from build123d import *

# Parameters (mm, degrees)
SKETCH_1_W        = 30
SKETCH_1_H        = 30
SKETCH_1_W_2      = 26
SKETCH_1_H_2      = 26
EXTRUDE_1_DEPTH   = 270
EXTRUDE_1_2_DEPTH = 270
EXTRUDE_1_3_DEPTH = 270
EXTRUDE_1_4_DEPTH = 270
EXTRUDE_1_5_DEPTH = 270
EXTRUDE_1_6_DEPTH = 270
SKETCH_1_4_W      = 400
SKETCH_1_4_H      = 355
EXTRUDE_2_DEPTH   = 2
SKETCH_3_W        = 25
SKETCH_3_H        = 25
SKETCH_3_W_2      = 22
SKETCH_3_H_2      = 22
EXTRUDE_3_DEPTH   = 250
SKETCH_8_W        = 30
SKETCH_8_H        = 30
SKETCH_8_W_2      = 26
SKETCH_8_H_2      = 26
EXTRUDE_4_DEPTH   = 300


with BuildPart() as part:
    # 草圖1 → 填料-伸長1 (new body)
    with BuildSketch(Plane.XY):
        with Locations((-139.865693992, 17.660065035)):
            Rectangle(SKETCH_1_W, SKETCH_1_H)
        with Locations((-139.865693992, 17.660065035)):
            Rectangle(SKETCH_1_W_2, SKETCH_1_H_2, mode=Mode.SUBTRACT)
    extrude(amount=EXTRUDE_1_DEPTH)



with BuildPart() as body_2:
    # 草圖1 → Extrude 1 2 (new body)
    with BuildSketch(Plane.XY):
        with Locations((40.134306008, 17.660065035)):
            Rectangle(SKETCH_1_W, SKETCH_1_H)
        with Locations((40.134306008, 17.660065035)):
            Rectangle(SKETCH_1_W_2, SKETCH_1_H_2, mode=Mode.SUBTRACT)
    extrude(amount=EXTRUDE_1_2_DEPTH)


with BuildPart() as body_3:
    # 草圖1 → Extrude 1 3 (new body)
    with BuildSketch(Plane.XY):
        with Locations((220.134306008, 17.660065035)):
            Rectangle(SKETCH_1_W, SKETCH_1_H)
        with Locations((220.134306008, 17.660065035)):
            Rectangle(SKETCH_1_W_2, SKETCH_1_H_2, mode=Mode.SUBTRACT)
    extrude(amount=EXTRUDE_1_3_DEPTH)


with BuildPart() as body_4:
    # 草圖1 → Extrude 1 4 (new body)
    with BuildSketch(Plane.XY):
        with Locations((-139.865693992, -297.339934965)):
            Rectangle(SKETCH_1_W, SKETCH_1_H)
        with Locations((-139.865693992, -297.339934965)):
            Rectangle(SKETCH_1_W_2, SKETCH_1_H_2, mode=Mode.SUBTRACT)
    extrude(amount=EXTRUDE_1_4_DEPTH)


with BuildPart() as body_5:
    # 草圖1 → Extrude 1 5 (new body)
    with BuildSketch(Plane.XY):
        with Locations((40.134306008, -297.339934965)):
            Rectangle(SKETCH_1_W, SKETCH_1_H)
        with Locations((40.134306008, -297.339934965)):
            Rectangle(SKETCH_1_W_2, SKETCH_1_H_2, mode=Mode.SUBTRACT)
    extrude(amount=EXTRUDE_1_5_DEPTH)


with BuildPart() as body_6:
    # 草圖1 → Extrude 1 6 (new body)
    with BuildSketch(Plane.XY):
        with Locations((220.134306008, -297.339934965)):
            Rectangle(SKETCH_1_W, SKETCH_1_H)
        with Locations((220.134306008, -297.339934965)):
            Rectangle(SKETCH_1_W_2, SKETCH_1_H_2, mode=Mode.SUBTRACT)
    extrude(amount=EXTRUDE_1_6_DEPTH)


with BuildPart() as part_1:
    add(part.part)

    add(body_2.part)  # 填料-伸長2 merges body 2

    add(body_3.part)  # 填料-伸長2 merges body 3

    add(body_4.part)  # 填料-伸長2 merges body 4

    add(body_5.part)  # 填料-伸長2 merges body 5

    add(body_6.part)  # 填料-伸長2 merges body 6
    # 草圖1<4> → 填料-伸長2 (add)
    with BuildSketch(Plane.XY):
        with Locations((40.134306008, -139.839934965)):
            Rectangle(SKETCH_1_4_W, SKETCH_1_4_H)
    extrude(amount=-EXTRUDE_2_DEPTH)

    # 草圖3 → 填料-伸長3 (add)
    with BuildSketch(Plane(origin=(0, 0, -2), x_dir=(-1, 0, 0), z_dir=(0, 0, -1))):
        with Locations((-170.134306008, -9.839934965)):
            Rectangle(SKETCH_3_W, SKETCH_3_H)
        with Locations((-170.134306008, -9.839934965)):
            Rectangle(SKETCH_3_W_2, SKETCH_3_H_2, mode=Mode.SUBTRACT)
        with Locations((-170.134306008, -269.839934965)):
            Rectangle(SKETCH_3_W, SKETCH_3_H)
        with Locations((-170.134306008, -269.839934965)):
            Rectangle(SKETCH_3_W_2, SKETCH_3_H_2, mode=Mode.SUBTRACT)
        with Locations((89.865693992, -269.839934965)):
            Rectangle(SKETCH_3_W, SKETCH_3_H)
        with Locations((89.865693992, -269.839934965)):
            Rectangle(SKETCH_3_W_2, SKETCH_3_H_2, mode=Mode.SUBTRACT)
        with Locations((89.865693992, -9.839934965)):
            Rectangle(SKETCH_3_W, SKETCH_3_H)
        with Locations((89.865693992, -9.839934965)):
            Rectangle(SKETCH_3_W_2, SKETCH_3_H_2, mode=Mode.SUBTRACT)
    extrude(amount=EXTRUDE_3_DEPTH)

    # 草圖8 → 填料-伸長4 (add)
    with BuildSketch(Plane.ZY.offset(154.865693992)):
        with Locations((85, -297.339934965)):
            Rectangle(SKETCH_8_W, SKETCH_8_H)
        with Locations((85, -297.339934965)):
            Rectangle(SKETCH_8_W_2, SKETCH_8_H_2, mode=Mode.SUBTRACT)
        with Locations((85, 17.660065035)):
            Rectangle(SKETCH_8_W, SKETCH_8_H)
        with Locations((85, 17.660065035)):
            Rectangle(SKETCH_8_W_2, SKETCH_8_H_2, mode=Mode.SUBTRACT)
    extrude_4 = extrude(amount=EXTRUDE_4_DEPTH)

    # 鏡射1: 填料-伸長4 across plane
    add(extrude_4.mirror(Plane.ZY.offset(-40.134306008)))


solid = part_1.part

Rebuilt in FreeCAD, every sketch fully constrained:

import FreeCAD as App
import Part
import Sketcher
from FreeCAD import Vector
Q = App.Units.Quantity

doc = App.newDocument("Part")
params = doc.addObject("Spreadsheet::Sheet", "Params")
for row, (alias, value) in enumerate([
    ("sketch1_width", "30 mm"),
    ("sketch1_width2", "26 mm"),
    ("pad1_length", "270 mm"),
    ("sketch2_width", "30 mm"),
    ("sketch2_width2", "26 mm"),
    ("pad2_length", "270 mm"),
    ("sketch3_width", "30 mm"),
    ("sketch3_width2", "26 mm"),
    ("pad3_length", "270 mm"),
    ("sketch4_width", "30 mm"),
    ("sketch4_width2", "26 mm"),
    ("pad4_length", "270 mm"),
    ("sketch5_width", "30 mm"),
    ("sketch5_width2", "26 mm"),
    ("pad5_length", "270 mm"),
    ("sketch6_width", "30 mm"),
    ("sketch6_width2", "26 mm"),
    ("pad6_length", "270 mm"),
    ("sketch7_width", "400 mm"),
    ("sketch7_height", "355 mm"),
    ("pad7_length", "2 mm"),
    ("sketch8_width", "25 mm"),
    ("sketch8_width2", "22 mm"),
    ("pad8_length", "250 mm"),
    ("sketch9_width", "30 mm"),
    ("sketch9_width2", "26 mm"),
    ("pad9_length", "300 mm"),
], start=1):
    params.set(f"A{row}", alias)
    params.set(f"B{row}", "=" + value)
    params.setAlias(f"B{row}", alias)

body = doc.addObject("PartDesign::Body", "Body")

# Sketch on XY plane
sketch1 = body.newObject("Sketcher::SketchObject", "Sketch")
sketch1.AttachmentSupport = (doc.getObject("XY_Plane"), [""])
sketch1.MapMode = "FlatFace"
sketch1.addGeometry([
    Part.LineSegment(Vector(-154.865694, 32.660065, 0), Vector(-154.865694, 2.660065, 0)),  # 0
    Part.LineSegment(Vector(-154.865694, 2.660065, 0), Vector(-124.865694, 2.660065, 0)),  # 1
    Part.LineSegment(Vector(-124.865694, 2.660065, 0), Vector(-124.865694, 32.660065, 0)),  # 2
    Part.LineSegment(Vector(-124.865694, 32.660065, 0), Vector(-154.865694, 32.660065, 0)),  # 3
    Part.LineSegment(Vector(-126.865694, 4.660065, 0), Vector(-152.865694, 4.660065, 0)),  # 4
    Part.LineSegment(Vector(-152.865694, 4.660065, 0), Vector(-152.865694, 30.660065, 0)),  # 5
    Part.LineSegment(Vector(-152.865694, 30.660065, 0), Vector(-126.865694, 30.660065, 0)),  # 6
    Part.LineSegment(Vector(-126.865694, 30.660065, 0), Vector(-126.865694, 4.660065, 0)),  # 7
], False)
sketch1.addConstraint([
    Sketcher.Constraint("Coincident", 0, 2, 1, 1),
    Sketcher.Constraint("Coincident", 1, 2, 2, 1),
    Sketcher.Constraint("Coincident", 2, 2, 3, 1),
    Sketcher.Constraint("Coincident", 3, 2, 0, 1),
    Sketcher.Constraint("Coincident", 4, 2, 5, 1),
    Sketcher.Constraint("Coincident", 5, 2, 6, 1),
    Sketcher.Constraint("Coincident", 6, 2, 7, 1),
    Sketcher.Constraint("Coincident", 7, 2, 4, 1),
    Sketcher.Constraint("Vertical", 0),
    Sketcher.Constraint("Horizontal", 1),
    Sketcher.Constraint("Vertical", 2),
    Sketcher.Constraint("Horizontal", 3),
    Sketcher.Constraint("Horizontal", 4),
    Sketcher.Constraint("Vertical", 5),
    Sketcher.Constraint("Horizontal", 6),
    Sketcher.Constraint("Vertical", 7),
    Sketcher.Constraint("Equal", 3, 0),
    Sketcher.Constraint("Equal", 6, 5),
    Sketcher.Constraint("DistanceX", 1, 1, 1, 2, Q("30 mm")),
    Sketcher.Constraint("DistanceX", 4, 2, 4, 1, Q("26 mm")),
    Sketcher.Constraint("DistanceX", 0, 2, 4, 2, Q("2 mm")),
    Sketcher.Constraint("DistanceY", 0, 2, 4, 2, Q("2 mm")),
    Sketcher.Constraint("DistanceX", 0, 2, -1, 1, Q("154.865694 mm")),
    Sketcher.Constraint("DistanceY", -1, 1, 0, 2, Q("2.660065 mm")),
])
sketch1.setExpression("Constraints[18]", "Params.sketch1_width")
sketch1.setExpression("Constraints[19]", "Params.sketch1_width2")
pad1 = body.newObject("PartDesign::Pad", "Pad")
pad1.Profile = sketch1
pad1.setExpression("Length", "Params.pad1_length")
body2 = doc.addObject("PartDesign::Body", "Body001")

# Sketch on XY plane
sketch2 = body2.newObject("Sketcher::SketchObject", "Sketch001")
sketch2.AttachmentSupport = (doc.getObject("XY_Plane001"), [""])
sketch2.MapMode = "FlatFace"
sketch2.addGeometry([
    Part.LineSegment(Vector(25.134306, 32.660065, 0), Vector(25.134306, 2.660065, 0)),  # 0
    Part.LineSegment(Vector(25.134306, 2.660065, 0), Vector(55.134306, 2.660065, 0)),  # 1
    Part.LineSegment(Vector(55.134306, 2.660065, 0), Vector(55.134306, 32.660065, 0)),  # 2
    Part.LineSegment(Vector(55.134306, 32.660065, 0), Vector(25.134306, 32.660065, 0)),  # 3
    Part.LineSegment(Vector(53.134306, 4.660065, 0), Vector(27.134306, 4.660065, 0)),  # 4
    Part.LineSegment(Vector(27.134306, 4.660065, 0), Vector(27.134306, 30.660065, 0)),  # 5
    Part.LineSegment(Vector(27.134306, 30.660065, 0), Vector(53.134306, 30.660065, 0)),  # 6
    Part.LineSegment(Vector(53.134306, 30.660065, 0), Vector(53.134306, 4.660065, 0)),  # 7
], False)
sketch2.addConstraint([
    Sketcher.Constraint("Coincident", 0, 2, 1, 1),
    Sketcher.Constraint("Coincident", 1, 2, 2, 1),
    Sketcher.Constraint("Coincident", 2, 2, 3, 1),
    Sketcher.Constraint("Coincident", 3, 2, 0, 1),
    Sketcher.Constraint("Coincident", 4, 2, 5, 1),
    Sketcher.Constraint("Coincident", 5, 2, 6, 1),
    Sketcher.Constraint("Coincident", 6, 2, 7, 1),
    Sketcher.Constraint("Coincident", 7, 2, 4, 1),
    Sketcher.Constraint("Vertical", 0),
    Sketcher.Constraint("Horizontal", 1),
    Sketcher.Constraint("Vertical", 2),
    Sketcher.Constraint("Horizontal", 3),
    Sketcher.Constraint("Horizontal", 4),
    Sketcher.Constraint("Vertical", 5),
    Sketcher.Constraint("Horizontal", 6),
    Sketcher.Constraint("Vertical", 7),
    Sketcher.Constraint("Equal", 3, 0),
    Sketcher.Constraint("Equal", 6, 5),
    Sketcher.Constraint("DistanceX", 1, 1, 1, 2, Q("30 mm")),
    Sketcher.Constraint("DistanceX", 4, 2, 4, 1, Q("26 mm")),
    Sketcher.Constraint("DistanceX", 0, 2, 4, 2, Q("2 mm")),
    Sketcher.Constraint("DistanceY", 0, 2, 4, 2, Q("2 mm")),
    Sketcher.Constraint("DistanceX", -1, 1, 0, 2, Q("25.134306 mm")),
    Sketcher.Constraint("DistanceY", -1, 1, 0, 2, Q("2.660065 mm")),
])
sketch2.setExpression("Constraints[18]", "Params.sketch2_width")
sketch2.setExpression("Constraints[19]", "Params.sketch2_width2")
pad2 = body2.newObject("PartDesign::Pad", "Pad001")
pad2.Profile = sketch2
pad2.setExpression("Length", "Params.pad2_length")
body3 = doc.addObject("PartDesign::Body", "Body002")

# Sketch on XY plane
sketch3 = body3.newObject("Sketcher::SketchObject", "Sketch002")
sketch3.AttachmentSupport = (doc.getObject("XY_Plane002"), [""])
sketch3.MapMode = "FlatFace"
sketch3.addGeometry([
    Part.LineSegment(Vector(205.134306, 32.660065, 0), Vector(205.134306, 2.660065, 0)),  # 0
    Part.LineSegment(Vector(205.134306, 2.660065, 0), Vector(235.134306, 2.660065, 0)),  # 1
    Part.LineSegment(Vector(235.134306, 2.660065, 0), Vector(235.134306, 32.660065, 0)),  # 2
    Part.LineSegment(Vector(235.134306, 32.660065, 0), Vector(205.134306, 32.660065, 0)),  # 3
    Part.LineSegment(Vector(233.134306, 4.660065, 0), Vector(207.134306, 4.660065, 0)),  # 4
    Part.LineSegment(Vector(207.134306, 4.660065, 0), Vector(207.134306, 30.660065, 0)),  # 5
    Part.LineSegment(Vector(207.134306, 30.660065, 0), Vector(233.134306, 30.660065, 0)),  # 6
    Part.LineSegment(Vector(233.134306, 30.660065, 0), Vector(233.134306, 4.660065, 0)),  # 7
], False)
sketch3.addConstraint([
    Sketcher.Constraint("Coincident", 0, 2, 1, 1),
    Sketcher.Constraint("Coincident", 1, 2, 2, 1),
    Sketcher.Constraint("Coincident", 2, 2, 3, 1),
    Sketcher.Constraint("Coincident", 3, 2, 0, 1),
    Sketcher.Constraint("Coincident", 4, 2, 5, 1),
    Sketcher.Constraint("Coincident", 5, 2, 6, 1),
    Sketcher.Constraint("Coincident", 6, 2, 7, 1),
    Sketcher.Constraint("Coincident", 7, 2, 4, 1),
    Sketcher.Constraint("Vertical", 0),
    Sketcher.Constraint("Horizontal", 1),
    Sketcher.Constraint("Vertical", 2),
    Sketcher.Constraint("Horizontal", 3),
    Sketcher.Constraint("Horizontal", 4),
    Sketcher.Constraint("Vertical", 5),
    Sketcher.Constraint("Horizontal", 6),
    Sketcher.Constraint("Vertical", 7),
    Sketcher.Constraint("Equal", 3, 0),
    Sketcher.Constraint("Equal", 6, 5),
    Sketcher.Constraint("DistanceX", 1, 1, 1, 2, Q("30 mm")),
    Sketcher.Constraint("DistanceX", 4, 2, 4, 1, Q("26 mm")),
    Sketcher.Constraint("DistanceX", 0, 2, 4, 2, Q("2 mm")),
    Sketcher.Constraint("DistanceY", 0, 2, 4, 2, Q("2 mm")),
    Sketcher.Constraint("DistanceX", -1, 1, 0, 2, Q("205.134306 mm")),
    Sketcher.Constraint("DistanceY", -1, 1, 0, 2, Q("2.660065 mm")),
])
sketch3.setExpression("Constraints[18]", "Params.sketch3_width")
sketch3.setExpression("Constraints[19]", "Params.sketch3_width2")
pad3 = body3.newObject("PartDesign::Pad", "Pad002")
pad3.Profile = sketch3
pad3.setExpression("Length", "Params.pad3_length")
body4 = doc.addObject("PartDesign::Body", "Body003")

# Sketch on XY plane
sketch4 = body4.newObject("Sketcher::SketchObject", "Sketch003")
sketch4.AttachmentSupport = (doc.getObject("XY_Plane003"), [""])
sketch4.MapMode = "FlatFace"
sketch4.addGeometry([
    Part.LineSegment(Vector(-154.865694, -282.339935, 0), Vector(-154.865694, -312.339935, 0)),  # 0
    Part.LineSegment(Vector(-154.865694, -312.339935, 0), Vector(-124.865694, -312.339935, 0)),  # 1
    Part.LineSegment(Vector(-124.865694, -312.339935, 0), Vector(-124.865694, -282.339935, 0)),  # 2
    Part.LineSegment(Vector(-124.865694, -282.339935, 0), Vector(-154.865694, -282.339935, 0)),  # 3
    Part.LineSegment(Vector(-126.865694, -310.339935, 0), Vector(-152.865694, -310.339935, 0)),  # 4
    Part.LineSegment(Vector(-152.865694, -310.339935, 0), Vector(-152.865694, -284.339935, 0)),  # 5
    Part.LineSegment(Vector(-152.865694, -284.339935, 0), Vector(-126.865694, -284.339935, 0)),  # 6
    Part.LineSegment(Vector(-126.865694, -284.339935, 0), Vector(-126.865694, -310.339935, 0)),  # 7
], False)
sketch4.addConstraint([
    Sketcher.Constraint("Coincident", 0, 2, 1, 1),
    Sketcher.Constraint("Coincident", 1, 2, 2, 1),
    Sketcher.Constraint("Coincident", 2, 2, 3, 1),
    Sketcher.Constraint("Coincident", 3, 2, 0, 1),
    Sketcher.Constraint("Coincident", 4, 2, 5, 1),
    Sketcher.Constraint("Coincident", 5, 2, 6, 1),
    Sketcher.Constraint("Coincident", 6, 2, 7, 1),
    Sketcher.Constraint("Coincident", 7, 2, 4, 1),
    Sketcher.Constraint("Vertical", 0),
    Sketcher.Constraint("Horizontal", 1),
    Sketcher.Constraint("Vertical", 2),
    Sketcher.Constraint("Horizontal", 3),
    Sketcher.Constraint("Horizontal", 4),
    Sketcher.Constraint("Vertical", 5),
    Sketcher.Constraint("Horizontal", 6),
    Sketcher.Constraint("Vertical", 7),
    Sketcher.Constraint("Equal", 3, 0),
    Sketcher.Constraint("Equal", 6, 5),
    Sketcher.Constraint("DistanceX", 1, 1, 1, 2, Q("30 mm")),
    Sketcher.Constraint("DistanceX", 4, 2, 4, 1, Q("26 mm")),
    Sketcher.Constraint("DistanceX", 0, 2, 4, 2, Q("2 mm")),
    Sketcher.Constraint("DistanceY", 0, 2, 4, 2, Q("2 mm")),
    Sketcher.Constraint("DistanceX", 0, 2, -1, 1, Q("154.865694 mm")),
    Sketcher.Constraint("DistanceY", 0, 2, -1, 1, Q("312.339935 mm")),
])
sketch4.setExpression("Constraints[18]", "Params.sketch4_width")
sketch4.setExpression("Constraints[19]", "Params.sketch4_width2")
pad4 = body4.newObject("PartDesign::Pad", "Pad003")
pad4.Profile = sketch4
pad4.setExpression("Length", "Params.pad4_length")
body5 = doc.addObject("PartDesign::Body", "Body004")

# Sketch on XY plane
sketch5 = body5.newObject("Sketcher::SketchObject", "Sketch004")
sketch5.AttachmentSupport = (doc.getObject("XY_Plane004"), [""])
sketch5.MapMode = "FlatFace"
sketch5.addGeometry([
    Part.LineSegment(Vector(25.134306, -282.339935, 0), Vector(25.134306, -312.339935, 0)),  # 0
    Part.LineSegment(Vector(25.134306, -312.339935, 0), Vector(55.134306, -312.339935, 0)),  # 1
    Part.LineSegment(Vector(55.134306, -312.339935, 0), Vector(55.134306, -282.339935, 0)),  # 2
    Part.LineSegment(Vector(55.134306, -282.339935, 0), Vector(25.134306, -282.339935, 0)),  # 3
    Part.LineSegment(Vector(53.134306, -310.339935, 0), Vector(27.134306, -310.339935, 0)),  # 4
    Part.LineSegment(Vector(27.134306, -310.339935, 0), Vector(27.134306, -284.339935, 0)),  # 5
    Part.LineSegment(Vector(27.134306, -284.339935, 0), Vector(53.134306, -284.339935, 0)),  # 6
    Part.LineSegment(Vector(53.134306, -284.339935, 0), Vector(53.134306, -310.339935, 0)),  # 7
], False)
sketch5.addConstraint([
    Sketcher.Constraint("Coincident", 0, 2, 1, 1),
    Sketcher.Constraint("Coincident", 1, 2, 2, 1),
    Sketcher.Constraint("Coincident", 2, 2, 3, 1),
    Sketcher.Constraint("Coincident", 3, 2, 0, 1),
    Sketcher.Constraint("Coincident", 4, 2, 5, 1),
    Sketcher.Constraint("Coincident", 5, 2, 6, 1),
    Sketcher.Constraint("Coincident", 6, 2, 7, 1),
    Sketcher.Constraint("Coincident", 7, 2, 4, 1),
    Sketcher.Constraint("Vertical", 0),
    Sketcher.Constraint("Horizontal", 1),
    Sketcher.Constraint("Vertical", 2),
    Sketcher.Constraint("Horizontal", 3),
    Sketcher.Constraint("Horizontal", 4),
    Sketcher.Constraint("Vertical", 5),
    Sketcher.Constraint("Horizontal", 6),
    Sketcher.Constraint("Vertical", 7),
    Sketcher.Constraint("Equal", 3, 0),
    Sketcher.Constraint("Equal", 6, 5),
    Sketcher.Constraint("DistanceX", 1, 1, 1, 2, Q("30 mm")),
    Sketcher.Constraint("DistanceX", 4, 2, 4, 1, Q("26 mm")),
    Sketcher.Constraint("DistanceX", 0, 2, 4, 2, Q("2 mm")),
    Sketcher.Constraint("DistanceY", 0, 2, 4, 2, Q("2 mm")),
    Sketcher.Constraint("DistanceX", -1, 1, 0, 2, Q("25.134306 mm")),
    Sketcher.Constraint("DistanceY", 0, 2, -1, 1, Q("312.339935 mm")),
])
sketch5.setExpression("Constraints[18]", "Params.sketch5_width")
sketch5.setExpression("Constraints[19]", "Params.sketch5_width2")
pad5 = body5.newObject("PartDesign::Pad", "Pad004")
pad5.Profile = sketch5
pad5.setExpression("Length", "Params.pad5_length")
body6 = doc.addObject("PartDesign::Body", "Body005")

# Sketch on XY plane
sketch6 = body6.newObject("Sketcher::SketchObject", "Sketch005")
sketch6.AttachmentSupport = (doc.getObject("XY_Plane005"), [""])
sketch6.MapMode = "FlatFace"
sketch6.addGeometry([
    Part.LineSegment(Vector(205.134306, -282.339935, 0), Vector(205.134306, -312.339935, 0)),  # 0
    Part.LineSegment(Vector(205.134306, -312.339935, 0), Vector(235.134306, -312.339935, 0)),  # 1
    Part.LineSegment(Vector(235.134306, -312.339935, 0), Vector(235.134306, -282.339935, 0)),  # 2
    Part.LineSegment(Vector(235.134306, -282.339935, 0), Vector(205.134306, -282.339935, 0)),  # 3
    Part.LineSegment(Vector(233.134306, -310.339935, 0), Vector(207.134306, -310.339935, 0)),  # 4
    Part.LineSegment(Vector(207.134306, -310.339935, 0), Vector(207.134306, -284.339935, 0)),  # 5
    Part.LineSegment(Vector(207.134306, -284.339935, 0), Vector(233.134306, -284.339935, 0)),  # 6
    Part.LineSegment(Vector(233.134306, -284.339935, 0), Vector(233.134306, -310.339935, 0)),  # 7
], False)
sketch6.addConstraint([
    Sketcher.Constraint("Coincident", 0, 2, 1, 1),
    Sketcher.Constraint("Coincident", 1, 2, 2, 1),
    Sketcher.Constraint("Coincident", 2, 2, 3, 1),
    Sketcher.Constraint("Coincident", 3, 2, 0, 1),
    Sketcher.Constraint("Coincident", 4, 2, 5, 1),
    Sketcher.Constraint("Coincident", 5, 2, 6, 1),
    Sketcher.Constraint("Coincident", 6, 2, 7, 1),
    Sketcher.Constraint("Coincident", 7, 2, 4, 1),
    Sketcher.Constraint("Vertical", 0),
    Sketcher.Constraint("Horizontal", 1),
    Sketcher.Constraint("Vertical", 2),
    Sketcher.Constraint("Horizontal", 3),
    Sketcher.Constraint("Horizontal", 4),
    Sketcher.Constraint("Vertical", 5),
    Sketcher.Constraint("Horizontal", 6),
    Sketcher.Constraint("Vertical", 7),
    Sketcher.Constraint("Equal", 3, 0),
    Sketcher.Constraint("Equal", 6, 5),
    Sketcher.Constraint("DistanceX", 1, 1, 1, 2, Q("30 mm")),
    Sketcher.Constraint("DistanceX", 4, 2, 4, 1, Q("26 mm")),
    Sketcher.Constraint("DistanceX", 0, 2, 4, 2, Q("2 mm")),
    Sketcher.Constraint("DistanceY", 0, 2, 4, 2, Q("2 mm")),
    Sketcher.Constraint("DistanceX", -1, 1, 0, 2, Q("205.134306 mm")),
    Sketcher.Constraint("DistanceY", 0, 2, -1, 1, Q("312.339935 mm")),
])
sketch6.setExpression("Constraints[18]", "Params.sketch6_width")
sketch6.setExpression("Constraints[19]", "Params.sketch6_width2")
pad6 = body6.newObject("PartDesign::Pad", "Pad005")
pad6.Profile = sketch6
pad6.setExpression("Length", "Params.pad6_length")
body.AllowCompound = True
doc.recompute()

boolean = body.newObject("PartDesign::Boolean", "Boolean")
boolean.Type = "Fuse"
boolean.addObjects([body2])
doc.recompute()

boolean2 = body.newObject("PartDesign::Boolean", "Boolean001")
boolean2.Type = "Fuse"
boolean2.addObjects([body3])
doc.recompute()

boolean3 = body.newObject("PartDesign::Boolean", "Boolean002")
boolean3.Type = "Fuse"
boolean3.addObjects([body4])
doc.recompute()

boolean4 = body.newObject("PartDesign::Boolean", "Boolean003")
boolean4.Type = "Fuse"
boolean4.addObjects([body5])
doc.recompute()

boolean5 = body.newObject("PartDesign::Boolean", "Boolean004")
boolean5.Type = "Fuse"
boolean5.addObjects([body6])

# Sketch on XY plane
sketch7 = body.newObject("Sketcher::SketchObject", "Sketch006")
sketch7.AttachmentSupport = (doc.getObject("XY_Plane"), [""])
sketch7.MapMode = "FlatFace"
sketch7.addGeometry([
    Part.LineSegment(Vector(-159.865694, 37.660065, 0), Vector(-159.865694, -317.339935, 0)),
    Part.LineSegment(Vector(-159.865694, -317.339935, 0), Vector(240.134306, -317.339935, 0)),
    Part.LineSegment(Vector(240.134306, -317.339935, 0), Vector(240.134306, 37.660065, 0)),
    Part.LineSegment(Vector(240.134306, 37.660065, 0), Vector(-159.865694, 37.660065, 0)),
], False)
sketch7.addConstraint([
    Sketcher.Constraint("Coincident", 0, 2, 1, 1),
    Sketcher.Constraint("Coincident", 1, 2, 2, 1),
    Sketcher.Constraint("Coincident", 2, 2, 3, 1),
    Sketcher.Constraint("Coincident", 3, 2, 0, 1),
    Sketcher.Constraint("Vertical", 0),
    Sketcher.Constraint("Horizontal", 1),
    Sketcher.Constraint("Vertical", 2),
    Sketcher.Constraint("Horizontal", 3),
    Sketcher.Constraint("DistanceX", 1, 1, 1, 2, Q("400 mm")),
    Sketcher.Constraint("DistanceY", 0, 2, 0, 1, Q("355 mm")),
    Sketcher.Constraint("DistanceX", 0, 2, -1, 1, Q("159.865694 mm")),
    Sketcher.Constraint("DistanceY", 0, 2, -1, 1, Q("317.339935 mm")),
])
sketch7.setExpression("Constraints[8]", "Params.sketch7_width")
sketch7.setExpression("Constraints[9]", "Params.sketch7_height")
pad7 = body.newObject("PartDesign::Pad", "Pad006")
pad7.Profile = sketch7
pad7.setExpression("Length", "Params.pad7_length")
pad7.Reversed = True

# Sketch on XY plane
sketch8 = body.newObject("Sketcher::SketchObject", "Sketch007")
sketch8.AttachmentSupport = (doc.getObject("XY_Plane"), [""])
sketch8.MapMode = "FlatFace"
sketch8.AttachmentOffset = App.Placement(Vector(0, 0, -2), App.Rotation())
sketch8.addGeometry([
    Part.LineSegment(Vector(182.634306, 2.660065, 0), Vector(182.634306, -22.339935, 0)),  # 0
    Part.LineSegment(Vector(182.634306, -22.339935, 0), Vector(157.634306, -22.339935, 0)),  # 1
    Part.LineSegment(Vector(157.634306, -22.339935, 0), Vector(157.634306, 2.660065, 0)),  # 2
    Part.LineSegment(Vector(157.634306, 2.660065, 0), Vector(182.634306, 2.660065, 0)),  # 3
    Part.LineSegment(Vector(159.134306, -20.839935, 0), Vector(181.134306, -20.839935, 0)),  # 4
    Part.LineSegment(Vector(181.134306, -20.839935, 0), Vector(181.134306, 1.160065, 0)),  # 5
    Part.LineSegment(Vector(181.134306, 1.160065, 0), Vector(159.134306, 1.160065, 0)),  # 6
    Part.LineSegment(Vector(159.134306, 1.160065, 0), Vector(159.134306, -20.839935, 0)),  # 7
    Part.LineSegment(Vector(182.634306, -257.339935, 0), Vector(182.634306, -282.339935, 0)),  # 8
    Part.LineSegment(Vector(182.634306, -282.339935, 0), Vector(157.634306, -282.339935, 0)),  # 9
    Part.LineSegment(Vector(157.634306, -282.339935, 0), Vector(157.634306, -257.339935, 0)),  # 10
    Part.LineSegment(Vector(157.634306, -257.339935, 0), Vector(182.634306, -257.339935, 0)),  # 11
    Part.LineSegment(Vector(159.134306, -280.839935, 0), Vector(181.134306, -280.839935, 0)),  # 12
    Part.LineSegment(Vector(181.134306, -280.839935, 0), Vector(181.134306, -258.839935, 0)),  # 13
    Part.LineSegment(Vector(181.134306, -258.839935, 0), Vector(159.134306, -258.839935, 0)),  # 14
    Part.LineSegment(Vector(159.134306, -258.839935, 0), Vector(159.134306, -280.839935, 0)),  # 15
    Part.LineSegment(Vector(-77.365694, -257.339935, 0), Vector(-77.365694, -282.339935, 0)),  # 16
    Part.LineSegment(Vector(-77.365694, -282.339935, 0), Vector(-102.365694, -282.339935, 0)),  # 17
    Part.LineSegment(Vector(-102.365694, -282.339935, 0), Vector(-102.365694, -257.339935, 0)),  # 18
    Part.LineSegment(Vector(-102.365694, -257.339935, 0), Vector(-77.365694, -257.339935, 0)),  # 19
    Part.LineSegment(Vector(-100.865694, -280.839935, 0), Vector(-78.865694, -280.839935, 0)),  # 20
    Part.LineSegment(Vector(-78.865694, -280.839935, 0), Vector(-78.865694, -258.839935, 0)),  # 21
    Part.LineSegment(Vector(-78.865694, -258.839935, 0), Vector(-100.865694, -258.839935, 0)),  # 22
    Part.LineSegment(Vector(-100.865694, -258.839935, 0), Vector(-100.865694, -280.839935, 0)),  # 23
    Part.LineSegment(Vector(-77.365694, 2.660065, 0), Vector(-77.365694, -22.339935, 0)),  # 24
    Part.LineSegment(Vector(-77.365694, -22.339935, 0), Vector(-102.365694, -22.339935, 0)),  # 25
    Part.LineSegment(Vector(-102.365694, -22.339935, 0), Vector(-102.365694, 2.660065, 0)),  # 26
    Part.LineSegment(Vector(-102.365694, 2.660065, 0), Vector(-77.365694, 2.660065, 0)),  # 27
    Part.LineSegment(Vector(-100.865694, -20.839935, 0), Vector(-78.865694, -20.839935, 0)),  # 28
    Part.LineSegment(Vector(-78.865694, -20.839935, 0), Vector(-78.865694, 1.160065, 0)),  # 29
    Part.LineSegment(Vector(-78.865694, 1.160065, 0), Vector(-100.865694, 1.160065, 0)),  # 30
    Part.LineSegment(Vector(-100.865694, 1.160065, 0), Vector(-100.865694, -20.839935, 0)),  # 31
], False)
sketch8.addConstraint([
    Sketcher.Constraint("Coincident", 0, 2, 1, 1),
    Sketcher.Constraint("Coincident", 1, 2, 2, 1),
    Sketcher.Constraint("Coincident", 2, 2, 3, 1),
    Sketcher.Constraint("Coincident", 3, 2, 0, 1),
    Sketcher.Constraint("Coincident", 4, 2, 5, 1),
    Sketcher.Constraint("Coincident", 5, 2, 6, 1),
    Sketcher.Constraint("Coincident", 6, 2, 7, 1),
    Sketcher.Constraint("Coincident", 7, 2, 4, 1),
    Sketcher.Constraint("Coincident", 8, 2, 9, 1),
    Sketcher.Constraint("Coincident", 9, 2, 10, 1),
    Sketcher.Constraint("Coincident", 10, 2, 11, 1),
    Sketcher.Constraint("Coincident", 11, 2, 8, 1),
    Sketcher.Constraint("Coincident", 12, 2, 13, 1),
    Sketcher.Constraint("Coincident", 13, 2, 14, 1),
    Sketcher.Constraint("Coincident", 14, 2, 15, 1),
    Sketcher.Constraint("Coincident", 15, 2, 12, 1),
    Sketcher.Constraint("Coincident", 16, 2, 17, 1),
    Sketcher.Constraint("Coincident", 17, 2, 18, 1),
    Sketcher.Constraint("Coincident", 18, 2, 19, 1),
    Sketcher.Constraint("Coincident", 19, 2, 16, 1),
    Sketcher.Constraint("Coincident", 20, 2, 21, 1),
    Sketcher.Constraint("Coincident", 21, 2, 22, 1),
    Sketcher.Constraint("Coincident", 22, 2, 23, 1),
    Sketcher.Constraint("Coincident", 23, 2, 20, 1),
    Sketcher.Constraint("Coincident", 24, 2, 25, 1),
    Sketcher.Constraint("Coincident", 25, 2, 26, 1),
    Sketcher.Constraint("Coincident", 26, 2, 27, 1),
    Sketcher.Constraint("Coincident", 27, 2, 24, 1),
    Sketcher.Constraint("Coincident", 28, 2, 29, 1),
    Sketcher.Constraint("Coincident", 29, 2, 30, 1),
    Sketcher.Constraint("Coincident", 30, 2, 31, 1),
    Sketcher.Constraint("Coincident", 31, 2, 28, 1),
    Sketcher.Constraint("Vertical", 0),
    Sketcher.Constraint("Horizontal", 1),
    Sketcher.Constraint("Vertical", 2),
    Sketcher.Constraint("Horizontal", 3),
    Sketcher.Constraint("Horizontal", 4),
    Sketcher.Constraint("Vertical", 5),
    Sketcher.Constraint("Horizontal", 6),
    Sketcher.Constraint("Vertical", 7),
    Sketcher.Constraint("Vertical", 8),
    Sketcher.Constraint("Horizontal", 9),
    Sketcher.Constraint("Vertical", 10),
    Sketcher.Constraint("Horizontal", 11),
    Sketcher.Constraint("Horizontal", 12),
    Sketcher.Constraint("Vertical", 13),
    Sketcher.Constraint("Horizontal", 14),
    Sketcher.Constraint("Vertical", 15),
    Sketcher.Constraint("Vertical", 16),
    Sketcher.Constraint("Horizontal", 17),
    Sketcher.Constraint("Vertical", 18),
    Sketcher.Constraint("Horizontal", 19),
    Sketcher.Constraint("Horizontal", 20),
    Sketcher.Constraint("Vertical", 21),
    Sketcher.Constraint("Horizontal", 22),
    Sketcher.Constraint("Vertical", 23),
    Sketcher.Constraint("Vertical", 24),
    Sketcher.Constraint("Horizontal", 25),
    Sketcher.Constraint("Vertical", 26),
    Sketcher.Constraint("Horizontal", 27),
    Sketcher.Constraint("Horizontal", 28),
    Sketcher.Constraint("Vertical", 29),
    Sketcher.Constraint("Horizontal", 30),
    Sketcher.Constraint("Vertical", 31),
    Sketcher.Constraint("Horizontal", 9, 2, 16, 2),
    Sketcher.Constraint("Horizontal", 11, 2, 18, 2),
    Sketcher.Constraint("Horizontal", 15, 2, 20, 2),
    Sketcher.Constraint("Horizontal", 14, 2, 21, 2),
    Sketcher.Constraint("Horizontal", 1, 2, 24, 2),
    Sketcher.Constraint("Horizontal", 3, 2, 26, 2),
    Sketcher.Constraint("Horizontal", 7, 2, 28, 2),
    Sketcher.Constraint("Horizontal", 6, 2, 29, 2),
    Sketcher.Constraint("Vertical", 3, 2, 8, 2),
    Sketcher.Constraint("Vertical", 2, 2, 9, 2),
    Sketcher.Constraint("Vertical", 5, 2, 12, 2),
    Sketcher.Constraint("Vertical", 7, 2, 14, 2),
    Sketcher.Constraint("Vertical", 19, 2, 24, 2),
    Sketcher.Constraint("Vertical", 18, 2, 25, 2),
    Sketcher.Constraint("Vertical", 21, 2, 28, 2),
    Sketcher.Constraint("Vertical", 23, 2, 30, 2),
    Sketcher.Constraint("Equal", 11, 17),
    Sketcher.Constraint("Equal", 14, 20),
    Sketcher.Constraint("Equal", 27, 0),
    Sketcher.Constraint("Equal", 30, 5),
    Sketcher.Constraint("Equal", 2, 8),
    Sketcher.Constraint("Equal", 7, 13),
    Sketcher.Constraint("DistanceX", 1, 2, 1, 1, Q("25 mm")),
    Sketcher.Constraint("DistanceX", 4, 1, 4, 2, Q("22 mm")),
    Sketcher.Constraint("DistanceY", 8, 2, 0, 2, Q("260 mm")),
    Sketcher.Constraint("DistanceX", 16, 2, 9, 2, Q("235 mm")),
    Sketcher.Constraint("DistanceX", 4, 2, 0, 2, Q("1.5 mm")),
    Sketcher.Constraint("DistanceY", 0, 2, 4, 2, Q("1.5 mm")),
    Sketcher.Constraint("DistanceY", 8, 2, 12, 2, Q("1.5 mm")),
    Sketcher.Constraint("DistanceX", 20, 2, 16, 2, Q("1.5 mm")),
    Sketcher.Constraint("DistanceX", -1, 1, 0, 2, Q("182.634306 mm")),
    Sketcher.Constraint("DistanceY", 0, 2, -1, 1, Q("22.339935 mm")),
])
sketch8.setExpression("Constraints[86]", "Params.sketch8_width")
sketch8.setExpression("Constraints[87]", "Params.sketch8_width2")
pad8 = body.newObject("PartDesign::Pad", "Pad007")
pad8.Profile = sketch8
pad8.setExpression("Length", "Params.pad8_length")
pad8.Reversed = True

# Sketch on YZ plane
sketch9 = body.newObject("Sketcher::SketchObject", "Sketch008")
sketch9.AttachmentSupport = (doc.getObject("YZ_Plane"), [""])
sketch9.MapMode = "FlatFace"
sketch9.AttachmentOffset = App.Placement(Vector(0, 0, -154.865694), App.Rotation())
sketch9.addGeometry([
    Part.LineSegment(Vector(-282.339935, 70, 0), Vector(-312.339935, 70, 0)),  # 0
    Part.LineSegment(Vector(-312.339935, 70, 0), Vector(-312.339935, 100, 0)),  # 1
    Part.LineSegment(Vector(-312.339935, 100, 0), Vector(-282.339935, 100, 0)),  # 2
    Part.LineSegment(Vector(-282.339935, 100, 0), Vector(-282.339935, 70, 0)),  # 3
    Part.LineSegment(Vector(-310.339935, 98, 0), Vector(-310.339935, 72, 0)),  # 4
    Part.LineSegment(Vector(-310.339935, 72, 0), Vector(-284.339935, 72, 0)),  # 5
    Part.LineSegment(Vector(-284.339935, 72, 0), Vector(-284.339935, 98, 0)),  # 6
    Part.LineSegment(Vector(-284.339935, 98, 0), Vector(-310.339935, 98, 0)),  # 7
    Part.LineSegment(Vector(32.660065, 70, 0), Vector(2.660065, 70, 0)),  # 8
    Part.LineSegment(Vector(2.660065, 70, 0), Vector(2.660065, 100, 0)),  # 9
    Part.LineSegment(Vector(2.660065, 100, 0), Vector(32.660065, 100, 0)),  # 10
    Part.LineSegment(Vector(32.660065, 100, 0), Vector(32.660065, 70, 0)),  # 11
    Part.LineSegment(Vector(4.660065, 98, 0), Vector(4.660065, 72, 0)),  # 12
    Part.LineSegment(Vector(4.660065, 72, 0), Vector(30.660065, 72, 0)),  # 13
    Part.LineSegment(Vector(30.660065, 72, 0), Vector(30.660065, 98, 0)),  # 14
    Part.LineSegment(Vector(30.660065, 98, 0), Vector(4.660065, 98, 0)),  # 15
], False)
sketch9.addConstraint([
    Sketcher.Constraint("Coincident", 0, 2, 1, 1),
    Sketcher.Constraint("Coincident", 1, 2, 2, 1),
    Sketcher.Constraint("Coincident", 2, 2, 3, 1),
    Sketcher.Constraint("Coincident", 3, 2, 0, 1),
    Sketcher.Constraint("Coincident", 4, 2, 5, 1),
    Sketcher.Constraint("Coincident", 5, 2, 6, 1),
    Sketcher.Constraint("Coincident", 6, 2, 7, 1),
    Sketcher.Constraint("Coincident", 7, 2, 4, 1),
    Sketcher.Constraint("Coincident", 8, 2, 9, 1),
    Sketcher.Constraint("Coincident", 9, 2, 10, 1),
    Sketcher.Constraint("Coincident", 10, 2, 11, 1),
    Sketcher.Constraint("Coincident", 11, 2, 8, 1),
    Sketcher.Constraint("Coincident", 12, 2, 13, 1),
    Sketcher.Constraint("Coincident", 13, 2, 14, 1),
    Sketcher.Constraint("Coincident", 14, 2, 15, 1),
    Sketcher.Constraint("Coincident", 15, 2, 12, 1),
    Sketcher.Constraint("Horizontal", 0),
    Sketcher.Constraint("Vertical", 1),
    Sketcher.Constraint("Horizontal", 2),
    Sketcher.Constraint("Vertical", 3),
    Sketcher.Constraint("Vertical", 4),
    Sketcher.Constraint("Horizontal", 5),
    Sketcher.Constraint("Vertical", 6),
    Sketcher.Constraint("Horizontal", 7),
    Sketcher.Constraint("Horizontal", 8),
    Sketcher.Constraint("Vertical", 9),
    Sketcher.Constraint("Horizontal", 10),
    Sketcher.Constraint("Vertical", 11),
    Sketcher.Constraint("Vertical", 12),
    Sketcher.Constraint("Horizontal", 13),
    Sketcher.Constraint("Vertical", 14),
    Sketcher.Constraint("Horizontal", 15),
    Sketcher.Constraint("Horizontal", 3, 2, 8, 2),
    Sketcher.Constraint("Horizontal", 2, 2, 9, 2),
    Sketcher.Constraint("Horizontal", 5, 2, 12, 2),
    Sketcher.Constraint("Horizontal", 7, 2, 14, 2),
    Sketcher.Constraint("Equal", 2, 8),
    Sketcher.Constraint("Equal", 7, 13),
    Sketcher.Constraint("Equal", 10, 1),
    Sketcher.Constraint("Equal", 15, 4),
    Sketcher.Constraint("DistanceX", 0, 2, 0, 1, Q("30 mm")),
    Sketcher.Constraint("DistanceX", 5, 1, 5, 2, Q("26 mm")),
    Sketcher.Constraint("DistanceY", -1, 1, 0, 2, Q("70 mm")),
    Sketcher.Constraint("DistanceY", -1, 1, 4, 2, Q("72 mm")),
    Sketcher.Constraint("DistanceX", 0, 2, 4, 2, Q("2 mm")),
    Sketcher.Constraint("DistanceX", 3, 2, 8, 2, Q("285 mm")),
    Sketcher.Constraint("DistanceX", 8, 2, 12, 2, Q("2 mm")),
    Sketcher.Constraint("DistanceX", 0, 2, -1, 1, Q("312.339935 mm")),
])
sketch9.setExpression("Constraints[40]", "Params.sketch9_width")
sketch9.setExpression("Constraints[41]", "Params.sketch9_width2")
pad9 = body.newObject("PartDesign::Pad", "Pad008")
pad9.Profile = sketch9
pad9.setExpression("Length", "Params.pad9_length")
pad9.Reversed = True
doc.recompute()

datumplane = body.newObject("PartDesign::Plane", "DatumPlane")
datumplane.AttachmentSupport = (doc.getObject("YZ_Plane"), [""])
datumplane.MapMode = "FlatFace"
datumplane.AttachmentOffset = App.Placement(Vector(0, 0, 40.134306), App.Rotation())
mirrored = body.newObject("PartDesign::Mirrored", "Mirrored")
mirrored.Originals = [pad9]
mirrored.MirrorPlane = (datumplane, [""])
body.Tip = mirrored

doc.recompute()
